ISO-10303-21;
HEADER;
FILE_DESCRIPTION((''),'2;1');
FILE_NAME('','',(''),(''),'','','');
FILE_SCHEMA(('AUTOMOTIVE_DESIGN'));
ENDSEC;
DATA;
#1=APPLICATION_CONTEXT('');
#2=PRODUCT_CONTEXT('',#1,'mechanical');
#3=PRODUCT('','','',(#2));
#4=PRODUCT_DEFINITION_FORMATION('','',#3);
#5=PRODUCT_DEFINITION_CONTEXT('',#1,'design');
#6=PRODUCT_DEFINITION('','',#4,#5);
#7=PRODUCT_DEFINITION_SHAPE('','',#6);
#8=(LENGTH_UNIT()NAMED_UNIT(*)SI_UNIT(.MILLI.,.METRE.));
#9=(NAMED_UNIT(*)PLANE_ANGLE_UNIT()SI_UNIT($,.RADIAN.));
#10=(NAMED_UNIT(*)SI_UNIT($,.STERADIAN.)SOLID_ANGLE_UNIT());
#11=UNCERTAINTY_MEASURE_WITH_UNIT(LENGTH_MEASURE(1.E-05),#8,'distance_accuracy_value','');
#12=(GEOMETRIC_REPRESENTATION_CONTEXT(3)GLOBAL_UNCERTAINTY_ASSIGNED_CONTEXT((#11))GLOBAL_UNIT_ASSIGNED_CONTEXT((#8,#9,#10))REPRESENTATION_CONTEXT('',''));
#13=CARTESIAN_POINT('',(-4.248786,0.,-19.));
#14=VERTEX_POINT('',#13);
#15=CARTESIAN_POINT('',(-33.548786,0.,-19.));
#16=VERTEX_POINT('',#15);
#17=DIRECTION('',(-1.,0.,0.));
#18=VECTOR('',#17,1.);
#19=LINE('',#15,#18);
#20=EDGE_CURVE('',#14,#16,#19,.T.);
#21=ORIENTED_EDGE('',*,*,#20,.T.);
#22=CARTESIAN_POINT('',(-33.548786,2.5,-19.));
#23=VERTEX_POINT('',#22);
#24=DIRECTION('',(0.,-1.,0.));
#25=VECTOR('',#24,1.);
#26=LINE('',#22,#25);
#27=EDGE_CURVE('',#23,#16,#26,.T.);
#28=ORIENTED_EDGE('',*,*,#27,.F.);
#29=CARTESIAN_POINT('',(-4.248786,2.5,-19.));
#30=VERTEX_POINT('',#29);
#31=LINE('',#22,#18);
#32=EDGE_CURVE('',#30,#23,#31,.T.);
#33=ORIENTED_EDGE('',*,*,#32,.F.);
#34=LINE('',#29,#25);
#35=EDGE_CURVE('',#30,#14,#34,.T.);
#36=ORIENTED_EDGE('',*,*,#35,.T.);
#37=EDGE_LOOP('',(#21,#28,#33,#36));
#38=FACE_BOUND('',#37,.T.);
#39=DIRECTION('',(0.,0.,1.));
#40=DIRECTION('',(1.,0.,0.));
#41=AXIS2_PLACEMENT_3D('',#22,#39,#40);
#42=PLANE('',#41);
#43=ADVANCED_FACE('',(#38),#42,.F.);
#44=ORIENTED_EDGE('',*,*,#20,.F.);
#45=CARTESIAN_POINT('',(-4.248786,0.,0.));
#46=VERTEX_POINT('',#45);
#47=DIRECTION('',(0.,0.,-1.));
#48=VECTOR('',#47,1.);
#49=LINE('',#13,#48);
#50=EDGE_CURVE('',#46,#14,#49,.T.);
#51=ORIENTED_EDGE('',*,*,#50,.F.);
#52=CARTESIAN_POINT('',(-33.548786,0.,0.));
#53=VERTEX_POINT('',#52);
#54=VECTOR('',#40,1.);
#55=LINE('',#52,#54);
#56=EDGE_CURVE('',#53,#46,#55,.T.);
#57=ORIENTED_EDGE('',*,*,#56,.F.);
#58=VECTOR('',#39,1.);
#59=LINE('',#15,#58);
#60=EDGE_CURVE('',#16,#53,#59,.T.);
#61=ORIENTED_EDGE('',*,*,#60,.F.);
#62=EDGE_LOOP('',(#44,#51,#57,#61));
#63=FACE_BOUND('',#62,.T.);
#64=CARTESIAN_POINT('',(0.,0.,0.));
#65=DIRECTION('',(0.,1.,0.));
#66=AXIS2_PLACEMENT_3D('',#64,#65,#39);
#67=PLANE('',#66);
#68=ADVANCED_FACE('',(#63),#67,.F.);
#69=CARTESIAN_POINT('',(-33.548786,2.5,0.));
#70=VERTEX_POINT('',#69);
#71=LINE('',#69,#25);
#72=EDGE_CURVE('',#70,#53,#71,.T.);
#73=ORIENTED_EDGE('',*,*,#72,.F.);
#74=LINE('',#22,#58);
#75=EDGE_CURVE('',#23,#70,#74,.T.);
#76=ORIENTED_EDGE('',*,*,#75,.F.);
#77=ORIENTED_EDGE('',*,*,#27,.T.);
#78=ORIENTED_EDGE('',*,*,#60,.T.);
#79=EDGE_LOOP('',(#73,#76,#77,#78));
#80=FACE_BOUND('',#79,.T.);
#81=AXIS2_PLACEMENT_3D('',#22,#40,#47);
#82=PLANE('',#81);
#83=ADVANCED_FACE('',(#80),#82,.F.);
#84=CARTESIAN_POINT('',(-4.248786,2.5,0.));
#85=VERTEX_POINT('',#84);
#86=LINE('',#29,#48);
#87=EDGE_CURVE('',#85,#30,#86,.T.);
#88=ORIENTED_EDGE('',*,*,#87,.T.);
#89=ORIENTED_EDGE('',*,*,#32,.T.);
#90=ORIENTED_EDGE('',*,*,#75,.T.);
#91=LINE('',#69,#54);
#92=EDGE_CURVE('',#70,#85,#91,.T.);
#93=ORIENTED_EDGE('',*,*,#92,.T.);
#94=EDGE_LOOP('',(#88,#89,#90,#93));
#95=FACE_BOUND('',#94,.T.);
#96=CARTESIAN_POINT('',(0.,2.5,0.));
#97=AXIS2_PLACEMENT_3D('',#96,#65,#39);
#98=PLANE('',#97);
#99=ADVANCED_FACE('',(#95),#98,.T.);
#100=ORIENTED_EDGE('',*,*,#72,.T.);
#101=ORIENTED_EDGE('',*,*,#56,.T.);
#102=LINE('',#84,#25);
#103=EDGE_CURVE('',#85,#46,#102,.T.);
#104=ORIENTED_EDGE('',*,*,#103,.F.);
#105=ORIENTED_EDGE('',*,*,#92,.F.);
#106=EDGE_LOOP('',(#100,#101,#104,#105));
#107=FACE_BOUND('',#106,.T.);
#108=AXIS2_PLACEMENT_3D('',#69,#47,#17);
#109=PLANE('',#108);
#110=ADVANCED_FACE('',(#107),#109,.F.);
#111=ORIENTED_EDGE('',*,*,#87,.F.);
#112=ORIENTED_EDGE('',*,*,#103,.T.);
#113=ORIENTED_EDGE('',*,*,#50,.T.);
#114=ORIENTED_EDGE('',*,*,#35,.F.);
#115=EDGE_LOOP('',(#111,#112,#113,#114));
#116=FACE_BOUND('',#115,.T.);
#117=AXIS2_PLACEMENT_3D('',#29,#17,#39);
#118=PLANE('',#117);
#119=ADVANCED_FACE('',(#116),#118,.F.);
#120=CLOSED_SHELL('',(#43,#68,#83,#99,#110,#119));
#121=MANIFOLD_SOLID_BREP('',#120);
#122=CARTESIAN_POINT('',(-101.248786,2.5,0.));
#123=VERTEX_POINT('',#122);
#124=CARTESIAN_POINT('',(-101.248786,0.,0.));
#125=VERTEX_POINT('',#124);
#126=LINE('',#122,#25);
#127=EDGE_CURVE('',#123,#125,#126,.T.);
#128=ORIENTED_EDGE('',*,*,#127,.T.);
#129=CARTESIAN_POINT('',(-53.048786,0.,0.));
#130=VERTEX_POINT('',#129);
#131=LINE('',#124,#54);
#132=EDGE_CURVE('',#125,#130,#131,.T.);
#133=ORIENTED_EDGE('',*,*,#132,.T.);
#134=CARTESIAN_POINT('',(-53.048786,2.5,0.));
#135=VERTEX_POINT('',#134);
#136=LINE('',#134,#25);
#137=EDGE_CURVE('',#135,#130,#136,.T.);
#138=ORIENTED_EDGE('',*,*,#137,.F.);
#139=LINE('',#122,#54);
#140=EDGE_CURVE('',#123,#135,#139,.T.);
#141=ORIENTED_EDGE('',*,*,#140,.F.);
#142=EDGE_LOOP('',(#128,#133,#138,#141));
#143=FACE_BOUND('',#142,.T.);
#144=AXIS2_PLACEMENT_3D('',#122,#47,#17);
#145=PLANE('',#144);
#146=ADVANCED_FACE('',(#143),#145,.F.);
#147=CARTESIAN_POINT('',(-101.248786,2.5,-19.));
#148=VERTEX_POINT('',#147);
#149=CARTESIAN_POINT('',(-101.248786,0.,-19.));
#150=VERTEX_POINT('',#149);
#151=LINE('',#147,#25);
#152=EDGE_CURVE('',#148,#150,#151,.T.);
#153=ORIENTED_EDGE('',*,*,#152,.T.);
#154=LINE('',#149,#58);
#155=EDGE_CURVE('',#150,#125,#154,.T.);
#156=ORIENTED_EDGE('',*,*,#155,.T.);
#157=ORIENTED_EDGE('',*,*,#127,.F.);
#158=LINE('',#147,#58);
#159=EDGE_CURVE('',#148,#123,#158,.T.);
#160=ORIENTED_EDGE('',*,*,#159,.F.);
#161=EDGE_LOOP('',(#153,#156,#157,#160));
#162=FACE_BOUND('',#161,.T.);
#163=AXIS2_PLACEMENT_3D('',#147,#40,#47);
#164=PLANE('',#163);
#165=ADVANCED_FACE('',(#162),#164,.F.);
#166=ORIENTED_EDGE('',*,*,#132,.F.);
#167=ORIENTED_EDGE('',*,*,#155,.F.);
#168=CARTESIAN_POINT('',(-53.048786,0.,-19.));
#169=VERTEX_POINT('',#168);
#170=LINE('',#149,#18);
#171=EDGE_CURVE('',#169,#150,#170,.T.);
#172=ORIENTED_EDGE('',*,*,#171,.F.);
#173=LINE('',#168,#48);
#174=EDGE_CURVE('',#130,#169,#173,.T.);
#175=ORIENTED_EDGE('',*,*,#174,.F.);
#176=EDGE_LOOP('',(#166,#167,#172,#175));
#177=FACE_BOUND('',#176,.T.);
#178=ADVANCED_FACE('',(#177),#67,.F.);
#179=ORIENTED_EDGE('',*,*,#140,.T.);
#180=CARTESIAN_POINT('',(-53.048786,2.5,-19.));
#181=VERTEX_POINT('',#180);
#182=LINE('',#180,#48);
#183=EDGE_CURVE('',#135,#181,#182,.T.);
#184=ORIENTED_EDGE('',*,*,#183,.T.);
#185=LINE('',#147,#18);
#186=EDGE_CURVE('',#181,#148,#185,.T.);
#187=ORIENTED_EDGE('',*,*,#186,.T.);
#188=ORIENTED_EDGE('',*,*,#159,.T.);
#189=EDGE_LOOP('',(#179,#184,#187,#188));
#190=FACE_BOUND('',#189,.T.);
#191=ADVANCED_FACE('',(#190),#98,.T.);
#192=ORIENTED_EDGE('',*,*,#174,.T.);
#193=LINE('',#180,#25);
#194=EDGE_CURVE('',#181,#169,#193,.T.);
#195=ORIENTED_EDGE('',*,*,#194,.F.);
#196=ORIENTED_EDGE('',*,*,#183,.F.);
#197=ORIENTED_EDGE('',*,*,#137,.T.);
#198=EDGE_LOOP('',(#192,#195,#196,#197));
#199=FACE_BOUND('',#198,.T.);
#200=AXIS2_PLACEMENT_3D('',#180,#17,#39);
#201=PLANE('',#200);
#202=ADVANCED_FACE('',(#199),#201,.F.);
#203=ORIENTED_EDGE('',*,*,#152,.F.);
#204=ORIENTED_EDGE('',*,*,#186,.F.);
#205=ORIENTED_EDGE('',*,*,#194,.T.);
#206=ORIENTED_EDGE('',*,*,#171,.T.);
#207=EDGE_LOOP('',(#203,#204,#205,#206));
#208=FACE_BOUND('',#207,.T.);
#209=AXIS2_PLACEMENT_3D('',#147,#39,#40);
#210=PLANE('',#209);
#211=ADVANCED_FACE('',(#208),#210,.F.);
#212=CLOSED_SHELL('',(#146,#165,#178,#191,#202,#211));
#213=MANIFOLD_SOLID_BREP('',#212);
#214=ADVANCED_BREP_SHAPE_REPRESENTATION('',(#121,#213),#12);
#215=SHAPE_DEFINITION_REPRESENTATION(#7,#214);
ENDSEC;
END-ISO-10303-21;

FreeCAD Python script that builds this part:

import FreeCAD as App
import Part
import Sketcher
from FreeCAD import Vector
Q = App.Units.Quantity

doc = App.newDocument("Part")
body = doc.addObject("PartDesign::Body", "Body")

# Sketch on XZ plane
sketch1 = body.newObject("Sketcher::SketchObject", "Sketch")
sketch1.AttachmentSupport = (doc.getObject("XZ_Plane"), [""])
sketch1.MapMode = "FlatFace"
sketch1.addGeometry([
    Part.LineSegment(Vector(-101.248786, -19, 0), Vector(-101.248786, 0, 0)),
    Part.LineSegment(Vector(-101.248786, 0, 0), Vector(-53.048786, 0, 0)),
    Part.LineSegment(Vector(-53.048786, 0, 0), Vector(-53.048786, -19, 0)),
    Part.LineSegment(Vector(-53.048786, -19, 0), Vector(-101.248786, -19, 0)),
], False)
sketch1.addConstraint([
    Sketcher.Constraint("Coincident", 0, 2, 1, 1),
    Sketcher.Constraint("Coincident", 1, 2, 2, 1),
    Sketcher.Constraint("Coincident", 2, 2, 3, 1),
    Sketcher.Constraint("Coincident", 3, 2, 0, 1),
    Sketcher.Constraint("Vertical", 0),
    Sketcher.Constraint("Horizontal", 1),
    Sketcher.Constraint("Vertical", 2),
    Sketcher.Constraint("Horizontal", 3),
    Sketcher.Constraint("PointOnObject", 0, 2, -1),
    Sketcher.Constraint("DistanceY", 0, 1, 0, 2, Q("19 mm")),
    Sketcher.Constraint("DistanceX", 1, 1, 1, 2, Q("48.2 mm")),
    Sketcher.Constraint("DistanceX", 0, 2, -1, 1, Q("101.248786 mm")),
])
pad1 = body.newObject("PartDesign::Pad", "Pad")
pad1.Profile = sketch1
pad1.Length = 2.5
pad1.Reversed = True
body2 = doc.addObject("PartDesign::Body", "Body001")

# Sketch on XZ plane
sketch2 = body2.newObject("Sketcher::SketchObject", "Sketch001")
sketch2.AttachmentSupport = (doc.getObject("XZ_Plane001"), [""])
sketch2.MapMode = "FlatFace"
sketch2.addGeometry([
    Part.LineSegment(Vector(-33.548786, -19, 0), Vector(-33.548786, 0, 0)),
    Part.LineSegment(Vector(-33.548786, 0, 0), Vector(-4.248786, 0, 0)),
    Part.LineSegment(Vector(-4.248786, 0, 0), Vector(-4.248786, -19, 0)),
    Part.LineSegment(Vector(-4.248786, -19, 0), Vector(-33.548786, -19, 0)),
], False)
sketch2.addConstraint([
    Sketcher.Constraint("Coincident", 0, 2, 1, 1),
    Sketcher.Constraint("Coincident", 1, 2, 2, 1),
    Sketcher.Constraint("Coincident", 2, 2, 3, 1),
    Sketcher.Constraint("Coincident", 3, 2, 0, 1),
    Sketcher.Constraint("Vertical", 0),
    Sketcher.Constraint("Horizontal", 1),
    Sketcher.Constraint("Vertical", 2),
    Sketcher.Constraint("Horizontal", 3),
    Sketcher.Constraint("PointOnObject", 0, 2, -1),
    Sketcher.Constraint("DistanceY", 0, 1, 0, 2, Q("19 mm")),
    Sketcher.Constraint("DistanceX", 1, 1, 1, 2, Q("29.3 mm")),
    Sketcher.Constraint("DistanceX", 0, 2, -1, 1, Q("33.548786 mm")),
])
pad2 = body2.newObject("PartDesign::Pad", "Pad001")
pad2.Profile = sketch2
pad2.Length = 2.5
pad2.Reversed = True

doc.recompute()
